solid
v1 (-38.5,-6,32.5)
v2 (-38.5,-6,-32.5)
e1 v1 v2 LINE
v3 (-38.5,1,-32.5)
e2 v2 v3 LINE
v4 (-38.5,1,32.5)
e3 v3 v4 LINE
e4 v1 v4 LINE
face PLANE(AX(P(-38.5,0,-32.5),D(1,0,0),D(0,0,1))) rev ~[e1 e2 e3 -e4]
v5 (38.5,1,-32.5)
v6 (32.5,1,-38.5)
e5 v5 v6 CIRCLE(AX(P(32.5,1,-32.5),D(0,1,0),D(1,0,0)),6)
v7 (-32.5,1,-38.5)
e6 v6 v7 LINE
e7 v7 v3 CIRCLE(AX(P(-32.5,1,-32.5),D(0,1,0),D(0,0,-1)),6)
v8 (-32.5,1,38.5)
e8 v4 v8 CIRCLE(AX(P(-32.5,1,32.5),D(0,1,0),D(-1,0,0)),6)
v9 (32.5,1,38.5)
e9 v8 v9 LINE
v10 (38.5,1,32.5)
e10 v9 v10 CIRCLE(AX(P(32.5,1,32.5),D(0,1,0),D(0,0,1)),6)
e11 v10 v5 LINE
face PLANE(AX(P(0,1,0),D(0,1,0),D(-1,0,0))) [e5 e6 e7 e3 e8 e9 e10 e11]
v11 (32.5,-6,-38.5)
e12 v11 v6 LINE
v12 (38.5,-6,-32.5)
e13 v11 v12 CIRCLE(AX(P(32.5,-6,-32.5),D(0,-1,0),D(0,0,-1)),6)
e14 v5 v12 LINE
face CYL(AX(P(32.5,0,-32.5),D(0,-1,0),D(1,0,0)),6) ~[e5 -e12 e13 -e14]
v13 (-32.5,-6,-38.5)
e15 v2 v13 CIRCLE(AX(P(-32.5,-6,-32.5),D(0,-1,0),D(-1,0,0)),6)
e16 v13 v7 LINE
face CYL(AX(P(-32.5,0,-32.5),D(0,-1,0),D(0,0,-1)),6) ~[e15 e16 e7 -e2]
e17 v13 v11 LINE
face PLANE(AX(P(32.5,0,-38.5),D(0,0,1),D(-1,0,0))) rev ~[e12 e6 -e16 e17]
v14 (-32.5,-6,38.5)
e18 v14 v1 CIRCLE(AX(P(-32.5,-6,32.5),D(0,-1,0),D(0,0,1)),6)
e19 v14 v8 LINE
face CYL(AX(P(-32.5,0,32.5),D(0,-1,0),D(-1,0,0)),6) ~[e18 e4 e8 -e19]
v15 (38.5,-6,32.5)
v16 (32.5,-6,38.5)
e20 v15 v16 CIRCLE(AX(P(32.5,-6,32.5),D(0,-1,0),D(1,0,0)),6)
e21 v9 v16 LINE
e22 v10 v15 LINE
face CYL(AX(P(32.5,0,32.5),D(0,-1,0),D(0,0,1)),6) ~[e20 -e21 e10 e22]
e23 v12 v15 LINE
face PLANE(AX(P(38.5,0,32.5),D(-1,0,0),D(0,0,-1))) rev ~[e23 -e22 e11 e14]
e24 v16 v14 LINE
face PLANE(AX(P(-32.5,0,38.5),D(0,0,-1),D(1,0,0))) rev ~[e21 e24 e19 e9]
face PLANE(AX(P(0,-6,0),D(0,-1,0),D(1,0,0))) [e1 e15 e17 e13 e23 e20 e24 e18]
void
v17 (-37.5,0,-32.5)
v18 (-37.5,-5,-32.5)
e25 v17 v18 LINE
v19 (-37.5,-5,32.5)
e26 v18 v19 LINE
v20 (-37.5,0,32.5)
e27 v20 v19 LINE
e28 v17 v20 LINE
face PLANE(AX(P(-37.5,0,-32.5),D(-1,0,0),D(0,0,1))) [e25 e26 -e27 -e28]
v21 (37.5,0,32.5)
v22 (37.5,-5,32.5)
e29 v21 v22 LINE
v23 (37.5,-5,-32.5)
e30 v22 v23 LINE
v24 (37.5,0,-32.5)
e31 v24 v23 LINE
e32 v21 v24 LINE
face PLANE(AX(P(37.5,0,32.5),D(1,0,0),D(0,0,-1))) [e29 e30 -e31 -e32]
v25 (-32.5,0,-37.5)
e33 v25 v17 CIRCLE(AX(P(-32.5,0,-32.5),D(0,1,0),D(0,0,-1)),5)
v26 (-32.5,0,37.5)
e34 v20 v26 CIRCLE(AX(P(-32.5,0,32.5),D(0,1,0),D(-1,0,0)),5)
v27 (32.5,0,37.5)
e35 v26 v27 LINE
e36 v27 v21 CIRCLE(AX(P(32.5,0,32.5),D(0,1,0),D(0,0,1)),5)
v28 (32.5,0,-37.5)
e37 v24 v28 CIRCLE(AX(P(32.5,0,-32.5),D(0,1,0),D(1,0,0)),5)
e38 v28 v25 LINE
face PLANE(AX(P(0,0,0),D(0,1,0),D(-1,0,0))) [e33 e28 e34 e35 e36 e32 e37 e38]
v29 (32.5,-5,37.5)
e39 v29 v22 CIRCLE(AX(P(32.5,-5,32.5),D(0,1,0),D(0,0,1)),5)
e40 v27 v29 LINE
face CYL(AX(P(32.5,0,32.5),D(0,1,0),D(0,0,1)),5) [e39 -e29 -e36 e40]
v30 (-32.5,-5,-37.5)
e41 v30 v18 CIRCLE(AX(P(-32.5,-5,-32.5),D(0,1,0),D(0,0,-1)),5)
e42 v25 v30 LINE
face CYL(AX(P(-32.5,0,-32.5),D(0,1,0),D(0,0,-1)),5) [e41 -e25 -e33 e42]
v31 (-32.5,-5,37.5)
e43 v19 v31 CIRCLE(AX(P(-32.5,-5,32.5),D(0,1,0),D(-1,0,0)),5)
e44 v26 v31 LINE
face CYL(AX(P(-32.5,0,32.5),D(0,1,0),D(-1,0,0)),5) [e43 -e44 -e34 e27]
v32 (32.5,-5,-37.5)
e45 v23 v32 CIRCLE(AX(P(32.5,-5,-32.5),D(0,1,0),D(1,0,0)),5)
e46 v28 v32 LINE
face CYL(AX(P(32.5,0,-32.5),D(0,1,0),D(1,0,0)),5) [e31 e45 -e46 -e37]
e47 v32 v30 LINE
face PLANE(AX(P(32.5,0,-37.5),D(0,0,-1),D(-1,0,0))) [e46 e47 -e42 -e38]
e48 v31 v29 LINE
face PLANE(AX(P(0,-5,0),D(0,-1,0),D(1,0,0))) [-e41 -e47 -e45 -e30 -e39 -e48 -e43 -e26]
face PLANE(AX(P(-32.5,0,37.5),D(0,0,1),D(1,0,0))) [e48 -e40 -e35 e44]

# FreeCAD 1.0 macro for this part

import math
import FreeCAD as App
import Part
import Sketcher

V = App.Vector
Q = App.Units.Quantity

doc = App.newDocument("Part")
body = doc.addObject("PartDesign::Body", "Body")

# Sketch on XZ plane
sketch1 = body.newObject("Sketcher::SketchObject", "Sketch")
sketch1.AttachmentSupport = (doc.getObject("XZ_Plane"), [""])
sketch1.MapMode = "FlatFace"
sketch1.addGeometry([
    Part.LineSegment(V(-32, -38, 0), V(32, -38, 0)),  # 0
    Part.ArcOfCircle(Part.Circle(V(32, -32, 0), V(0, 0, 1), 6), math.radians(-90), math.radians(0)),  # 1
    Part.LineSegment(V(38, -32, 0), V(38, 32, 0)),  # 2
    Part.ArcOfCircle(Part.Circle(V(32, 32, 0), V(0, 0, 1), 6), math.radians(0), math.radians(90)),  # 3
    Part.LineSegment(V(32, 38, 0), V(-32, 38, 0)),  # 4
    Part.ArcOfCircle(Part.Circle(V(-32, 32, 0), V(0, 0, 1), 6), math.radians(90), math.radians(180)),  # 5
    Part.LineSegment(V(-38, 32, 0), V(-38, -32, 0)),  # 6
    Part.ArcOfCircle(Part.Circle(V(-32, -32, 0), V(0, 0, 1), 6), math.radians(180), math.radians(270)),  # 7
    Part.LineSegment(V(38, 32, 0), V(38, -32, 0)),  # 8
    Part.ArcOfCircle(Part.Circle(V(32, -32, 0), V(0, 0, 1), 5), math.radians(-90), math.radians(0)),  # 9
    Part.LineSegment(V(32, -38, 0), V(-32, -38, 0)),  # 10
    Part.ArcOfCircle(Part.Circle(V(-32, -32, 0), V(0, 0, 1), 5), math.radians(180), math.radians(270)),  # 11
    Part.LineSegment(V(-38, -32, 0), V(-38, 32, 0)),  # 12
    Part.ArcOfCircle(Part.Circle(V(-32, 32, 0), V(0, 0, 1), 5), math.radians(90), math.radians(180)),  # 13
    Part.LineSegment(V(-32, 38, 0), V(32, 38, 0)),  # 14
    Part.ArcOfCircle(Part.Circle(V(32, 32, 0), V(0, 0, 1), 5), math.radians(0), math.radians(90)),  # 15
], False)
sketch1.addConstraint([
    Sketcher.Constraint("Tangent", 0, 2, 1, 1),
    Sketcher.Constraint("Tangent", 1, 2, 2, 1),
    Sketcher.Constraint("Tangent", 2, 2, 3, 1),
    Sketcher.Constraint("Tangent", 3, 2, 4, 1),
    Sketcher.Constraint("Tangent", 4, 2, 5, 1),
    Sketcher.Constraint("Tangent", 5, 2, 6, 1),
    Sketcher.Constraint("Tangent", 6, 2, 7, 1),
    Sketcher.Constraint("Tangent", 7, 2, 0, 1),
    Sketcher.Constraint("Tangent", 8, 2, 9, 2),
    Sketcher.Constraint("Tangent", 9, 1, 10, 1),
    Sketcher.Constraint("Tangent", 10, 2, 11, 2),
    Sketcher.Constraint("Tangent", 11, 1, 12, 1),
    Sketcher.Constraint("Tangent", 12, 2, 13, 2),
    Sketcher.Constraint("Tangent", 13, 1, 14, 1),
    Sketcher.Constraint("Tangent", 14, 2, 15, 2),
    Sketcher.Constraint("Tangent", 15, 1, 8, 1),
    Sketcher.Constraint("Horizontal", 0),
    Sketcher.Constraint("Vertical", 2),
    Sketcher.Constraint("Horizontal", 4),
    Sketcher.Constraint("Vertical", 6),
    Sketcher.Constraint("Vertical", 8),
    Sketcher.Constraint("Horizontal", 10),
    Sketcher.Constraint("Vertical", 12),
    Sketcher.Constraint("Horizontal", 14),
    Sketcher.Constraint("Coincident", 9, 3, 1, 3),
    Sketcher.Constraint("Coincident", 11, 3, 7, 3),
    Sketcher.Constraint("Coincident", 13, 3, 5, 3),
    Sketcher.Constraint("Equal", 1, 3),
    Sketcher.Constraint("Equal", 3, 5),
    Sketcher.Constraint("Equal", 5, 7),
    Sketcher.Constraint("Equal", 13, 15),
    Sketcher.Constraint("Symmetric", 1, 3, 5, 3, -1, 1),
    Sketcher.Constraint("Equal", 14, 2),
    Sketcher.Constraint("Radius", 1, Q("6 mm")),
    Sketcher.Constraint("Radius", 9, Q("5 mm")),
    Sketcher.Constraint("DistanceX", 0, 1, 0, 2, Q("65 mm")),
])
pad1 = body.newObject("PartDesign::Pad", "Pad")
pad1.Profile = sketch1
pad1.Length = 5

# Sketch on XZ plane
sketch2 = body.newObject("Sketcher::SketchObject", "Sketch001")
sketch2.AttachmentSupport = (doc.getObject("XZ_Plane"), [""])
sketch2.MapMode = "FlatFace"
sketch2.AttachmentOffset = App.Placement(V(0, 0, 5), App.Rotation())
sketch2.addGeometry([
    Part.ArcOfCircle(Part.Circle(V(-32, -32, 0), V(0, 0, 1), 6), math.radians(180), math.radians(270)),  # 0
    Part.LineSegment(V(-32, -38, 0), V(32, -38, 0)),  # 1
    Part.ArcOfCircle(Part.Circle(V(32, -32, 0), V(0, 0, 1), 6), math.radians(-90), math.radians(0)),  # 2
    Part.LineSegment(V(38, -32, 0), V(38, 32, 0)),  # 3
    Part.ArcOfCircle(Part.Circle(V(32, 32, 0), V(0, 0, 1), 6), math.radians(0), math.radians(90)),  # 4
    Part.LineSegment(V(32, 38, 0), V(-32, 38, 0)),  # 5
    Part.ArcOfCircle(Part.Circle(V(-32, 32, 0), V(0, 0, 1), 6), math.radians(90), math.radians(180)),  # 6
    Part.LineSegment(V(-38, 32, 0), V(-38, -32, 0)),  # 7
], False)
sketch2.addConstraint([
    Sketcher.Constraint("Tangent", 0, 2, 1, 1),
    Sketcher.Constraint("Tangent", 1, 2, 2, 1),
    Sketcher.Constraint("Tangent", 2, 2, 3, 1),
    Sketcher.Constraint("Tangent", 3, 2, 4, 1),
    Sketcher.Constraint("Tangent", 4, 2, 5, 1),
    Sketcher.Constraint("Tangent", 5, 2, 6, 1),
    Sketcher.Constraint("Tangent", 6, 2, 7, 1),
    Sketcher.Constraint("Tangent", 7, 2, 0, 1),
    Sketcher.Constraint("Horizontal", 1),
    Sketcher.Constraint("Vertical", 3),
    Sketcher.Constraint("Horizontal", 5),
    Sketcher.Constraint("Vertical", 7),
    Sketcher.Constraint("Equal", 0, 2),
    Sketcher.Constraint("Equal", 2, 4),
    Sketcher.Constraint("Equal", 4, 6),
    Sketcher.Constraint("Symmetric", 0, 3, 4, 3, -1, 1),
    Sketcher.Constraint("Equal", 5, 3),
    Sketcher.Constraint("Radius", 0, Q("6 mm")),
    Sketcher.Constraint("DistanceX", 1, 1, 1, 2, Q("65 mm")),
])
pad2 = body.newObject("PartDesign::Pad", "Pad001")
pad2.Profile = sketch2
pad2.Length = 1

# Sketch on XZ plane
sketch3 = body.newObject("Sketcher::SketchObject", "Sketch002")
sketch3.AttachmentSupport = (doc.getObject("XZ_Plane"), [""])
sketch3.MapMode = "FlatFace"
sketch3.addGeometry([
    Part.ArcOfCircle(Part.Circle(V(32, -32, 0), V(0, 0, 1), 6), math.radians(-90), math.radians(0)),  # 0
    Part.LineSegment(V(32, -38, 0), V(-32, -38, 0)),  # 1
    Part.ArcOfCircle(Part.Circle(V(-32, -32, 0), V(0, 0, 1), 6), math.radians(180), math.radians(270)),  # 2
    Part.LineSegment(V(-38, -32, 0), V(-38, 32, 0)),  # 3
    Part.ArcOfCircle(Part.Circle(V(-32, 32, 0), V(0, 0, 1), 6), math.radians(90), math.radians(180)),  # 4
    Part.LineSegment(V(-32, 38, 0), V(32, 38, 0)),  # 5
    Part.ArcOfCircle(Part.Circle(V(32, 32, 0), V(0, 0, 1), 6), math.radians(0), math.radians(90)),  # 6
    Part.LineSegment(V(38, 32, 0), V(38, -32, 0)),  # 7
], False)
sketch3.addConstraint([
    Sketcher.Constraint("Tangent", 0, 1, 1, 1),
    Sketcher.Constraint("Tangent", 1, 2, 2, 2),
    Sketcher.Constraint("Tangent", 2, 1, 3, 1),
    Sketcher.Constraint("Tangent", 3, 2, 4, 2),
    Sketcher.Constraint("Tangent", 4, 1, 5, 1),
    Sketcher.Constraint("Tangent", 5, 2, 6, 2),
    Sketcher.Constraint("Tangent", 6, 1, 7, 1),
    Sketcher.Constraint("Tangent", 7, 2, 0, 2),
    Sketcher.Constraint("Horizontal", 1),
    Sketcher.Constraint("Vertical", 3),
    Sketcher.Constraint("Horizontal", 5),
    Sketcher.Constraint("Vertical", 7),
    Sketcher.Constraint("Equal", 0, 2),
    Sketcher.Constraint("Equal", 2, 4),
    Sketcher.Constraint("Equal", 4, 6),
    Sketcher.Constraint("Symmetric", 0, 3, 4, 3, -1, 1),
    Sketcher.Constraint("Equal", 5, 3),
    Sketcher.Constraint("Radius", 0, Q("6 mm")),
    Sketcher.Constraint("DistanceX", 1, 2, 1, 1, Q("65 mm")),
])
pad3 = body.newObject("PartDesign::Pad", "Pad002")
pad3.Profile = sketch3
pad3.Length = 1
pad3.Reversed = True

doc.recompute()
